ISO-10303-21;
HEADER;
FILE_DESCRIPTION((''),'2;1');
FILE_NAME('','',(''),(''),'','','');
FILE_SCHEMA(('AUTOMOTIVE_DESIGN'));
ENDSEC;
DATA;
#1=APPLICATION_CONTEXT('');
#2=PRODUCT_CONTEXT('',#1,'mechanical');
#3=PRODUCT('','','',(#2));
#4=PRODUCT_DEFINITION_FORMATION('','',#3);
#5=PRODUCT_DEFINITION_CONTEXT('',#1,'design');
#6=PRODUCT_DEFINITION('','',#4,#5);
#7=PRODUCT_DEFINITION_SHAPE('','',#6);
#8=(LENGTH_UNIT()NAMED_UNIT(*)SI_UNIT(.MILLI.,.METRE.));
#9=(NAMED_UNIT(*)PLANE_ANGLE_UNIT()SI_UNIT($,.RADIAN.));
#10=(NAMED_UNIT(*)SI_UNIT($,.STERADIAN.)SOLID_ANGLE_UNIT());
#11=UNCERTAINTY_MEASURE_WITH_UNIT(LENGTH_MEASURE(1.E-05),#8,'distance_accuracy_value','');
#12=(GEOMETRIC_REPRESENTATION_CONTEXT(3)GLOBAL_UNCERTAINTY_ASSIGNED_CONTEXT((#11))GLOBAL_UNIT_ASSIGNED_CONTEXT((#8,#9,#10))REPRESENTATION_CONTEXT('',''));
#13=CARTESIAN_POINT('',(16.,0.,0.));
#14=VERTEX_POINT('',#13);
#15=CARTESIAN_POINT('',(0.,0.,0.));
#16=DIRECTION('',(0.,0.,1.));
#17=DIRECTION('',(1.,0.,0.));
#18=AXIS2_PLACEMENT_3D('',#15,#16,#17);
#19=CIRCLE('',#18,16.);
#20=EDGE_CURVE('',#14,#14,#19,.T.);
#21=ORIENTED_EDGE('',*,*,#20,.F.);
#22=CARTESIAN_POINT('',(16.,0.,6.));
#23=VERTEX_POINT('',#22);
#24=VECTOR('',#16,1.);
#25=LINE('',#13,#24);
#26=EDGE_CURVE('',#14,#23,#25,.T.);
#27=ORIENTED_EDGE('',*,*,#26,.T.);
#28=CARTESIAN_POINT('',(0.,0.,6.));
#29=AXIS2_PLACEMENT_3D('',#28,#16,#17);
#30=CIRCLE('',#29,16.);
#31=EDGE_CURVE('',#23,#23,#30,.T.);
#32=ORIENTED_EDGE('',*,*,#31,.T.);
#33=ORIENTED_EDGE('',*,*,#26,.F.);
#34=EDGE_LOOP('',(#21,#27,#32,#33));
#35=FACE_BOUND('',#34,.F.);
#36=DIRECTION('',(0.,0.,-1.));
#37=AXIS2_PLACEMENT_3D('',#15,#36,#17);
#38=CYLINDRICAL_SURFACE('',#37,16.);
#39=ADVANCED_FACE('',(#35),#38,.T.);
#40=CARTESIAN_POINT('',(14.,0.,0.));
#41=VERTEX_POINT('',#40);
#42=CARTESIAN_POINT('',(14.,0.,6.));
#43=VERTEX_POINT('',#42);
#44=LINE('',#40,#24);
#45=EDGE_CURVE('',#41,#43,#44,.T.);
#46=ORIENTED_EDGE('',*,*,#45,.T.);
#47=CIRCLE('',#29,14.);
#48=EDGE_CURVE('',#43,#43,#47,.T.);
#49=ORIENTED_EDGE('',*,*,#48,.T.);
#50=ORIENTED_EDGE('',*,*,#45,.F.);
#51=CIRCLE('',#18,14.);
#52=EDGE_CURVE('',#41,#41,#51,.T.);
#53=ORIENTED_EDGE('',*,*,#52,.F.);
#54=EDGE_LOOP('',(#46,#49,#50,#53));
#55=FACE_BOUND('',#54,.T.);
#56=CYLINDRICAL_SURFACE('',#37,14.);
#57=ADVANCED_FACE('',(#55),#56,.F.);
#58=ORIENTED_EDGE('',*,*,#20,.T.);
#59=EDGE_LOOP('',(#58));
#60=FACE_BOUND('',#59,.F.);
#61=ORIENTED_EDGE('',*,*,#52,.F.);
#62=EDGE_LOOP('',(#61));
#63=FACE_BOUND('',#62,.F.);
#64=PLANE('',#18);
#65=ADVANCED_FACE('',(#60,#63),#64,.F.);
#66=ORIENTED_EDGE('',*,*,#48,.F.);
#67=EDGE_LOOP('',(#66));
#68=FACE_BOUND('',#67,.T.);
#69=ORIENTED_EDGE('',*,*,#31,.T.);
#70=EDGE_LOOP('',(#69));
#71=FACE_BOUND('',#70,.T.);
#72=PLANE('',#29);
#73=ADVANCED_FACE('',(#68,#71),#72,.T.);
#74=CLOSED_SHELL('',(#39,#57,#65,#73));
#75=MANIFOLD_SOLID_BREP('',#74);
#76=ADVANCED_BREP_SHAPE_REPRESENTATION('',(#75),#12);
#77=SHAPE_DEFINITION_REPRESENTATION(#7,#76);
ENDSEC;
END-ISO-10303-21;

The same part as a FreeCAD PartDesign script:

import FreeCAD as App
import Part
import Sketcher

V = App.Vector
Q = App.Units.Quantity

doc = App.newDocument("Part")
body = doc.addObject("PartDesign::Body", "Body")

# Sketch on XY plane
sketch1 = body.newObject("Sketcher::SketchObject", "Sketch")
sketch1.AttachmentSupport = (doc.getObject("XY_Plane"), [""])
sketch1.MapMode = "FlatFace"
sketch1.addGeometry(Part.Circle(V(0, 0, 0), V(0, 0, 1), 14), False)
sketch1.addConstraint([
    Sketcher.Constraint("Coincident", 0, 3, -1, 1),
    Sketcher.Constraint("Diameter", 0, Q("28 mm")),
])
pad1 = body.newObject("PartDesign::Pad", "Pad")
pad1.Profile = sketch1
pad1.Length = 6
body2 = doc.addObject("PartDesign::Body", "Body001")

# Sketch on XY plane
sketch2 = body2.newObject("Sketcher::SketchObject", "Sketch001")
sketch2.AttachmentSupport = (doc.getObject("XY_Plane001"), [""])
sketch2.MapMode = "FlatFace"
sketch2.addGeometry(Part.Circle(V(0, 0, 0), V(0, 0, 1), 16), False)
sketch2.addConstraint([
    Sketcher.Constraint("Coincident", 0, 3, -1, 1),
    Sketcher.Constraint("Diameter", 0, Q("32 mm")),
])
pad2 = body2.newObject("PartDesign::Pad", "Pad001")
pad2.Profile = sketch2
pad2.Length = 6
doc.recompute()

boolean = body2.newObject("PartDesign::Boolean", "Boolean")
boolean.Type = "Cut"
boolean.addObjects([body])

doc.recompute()
